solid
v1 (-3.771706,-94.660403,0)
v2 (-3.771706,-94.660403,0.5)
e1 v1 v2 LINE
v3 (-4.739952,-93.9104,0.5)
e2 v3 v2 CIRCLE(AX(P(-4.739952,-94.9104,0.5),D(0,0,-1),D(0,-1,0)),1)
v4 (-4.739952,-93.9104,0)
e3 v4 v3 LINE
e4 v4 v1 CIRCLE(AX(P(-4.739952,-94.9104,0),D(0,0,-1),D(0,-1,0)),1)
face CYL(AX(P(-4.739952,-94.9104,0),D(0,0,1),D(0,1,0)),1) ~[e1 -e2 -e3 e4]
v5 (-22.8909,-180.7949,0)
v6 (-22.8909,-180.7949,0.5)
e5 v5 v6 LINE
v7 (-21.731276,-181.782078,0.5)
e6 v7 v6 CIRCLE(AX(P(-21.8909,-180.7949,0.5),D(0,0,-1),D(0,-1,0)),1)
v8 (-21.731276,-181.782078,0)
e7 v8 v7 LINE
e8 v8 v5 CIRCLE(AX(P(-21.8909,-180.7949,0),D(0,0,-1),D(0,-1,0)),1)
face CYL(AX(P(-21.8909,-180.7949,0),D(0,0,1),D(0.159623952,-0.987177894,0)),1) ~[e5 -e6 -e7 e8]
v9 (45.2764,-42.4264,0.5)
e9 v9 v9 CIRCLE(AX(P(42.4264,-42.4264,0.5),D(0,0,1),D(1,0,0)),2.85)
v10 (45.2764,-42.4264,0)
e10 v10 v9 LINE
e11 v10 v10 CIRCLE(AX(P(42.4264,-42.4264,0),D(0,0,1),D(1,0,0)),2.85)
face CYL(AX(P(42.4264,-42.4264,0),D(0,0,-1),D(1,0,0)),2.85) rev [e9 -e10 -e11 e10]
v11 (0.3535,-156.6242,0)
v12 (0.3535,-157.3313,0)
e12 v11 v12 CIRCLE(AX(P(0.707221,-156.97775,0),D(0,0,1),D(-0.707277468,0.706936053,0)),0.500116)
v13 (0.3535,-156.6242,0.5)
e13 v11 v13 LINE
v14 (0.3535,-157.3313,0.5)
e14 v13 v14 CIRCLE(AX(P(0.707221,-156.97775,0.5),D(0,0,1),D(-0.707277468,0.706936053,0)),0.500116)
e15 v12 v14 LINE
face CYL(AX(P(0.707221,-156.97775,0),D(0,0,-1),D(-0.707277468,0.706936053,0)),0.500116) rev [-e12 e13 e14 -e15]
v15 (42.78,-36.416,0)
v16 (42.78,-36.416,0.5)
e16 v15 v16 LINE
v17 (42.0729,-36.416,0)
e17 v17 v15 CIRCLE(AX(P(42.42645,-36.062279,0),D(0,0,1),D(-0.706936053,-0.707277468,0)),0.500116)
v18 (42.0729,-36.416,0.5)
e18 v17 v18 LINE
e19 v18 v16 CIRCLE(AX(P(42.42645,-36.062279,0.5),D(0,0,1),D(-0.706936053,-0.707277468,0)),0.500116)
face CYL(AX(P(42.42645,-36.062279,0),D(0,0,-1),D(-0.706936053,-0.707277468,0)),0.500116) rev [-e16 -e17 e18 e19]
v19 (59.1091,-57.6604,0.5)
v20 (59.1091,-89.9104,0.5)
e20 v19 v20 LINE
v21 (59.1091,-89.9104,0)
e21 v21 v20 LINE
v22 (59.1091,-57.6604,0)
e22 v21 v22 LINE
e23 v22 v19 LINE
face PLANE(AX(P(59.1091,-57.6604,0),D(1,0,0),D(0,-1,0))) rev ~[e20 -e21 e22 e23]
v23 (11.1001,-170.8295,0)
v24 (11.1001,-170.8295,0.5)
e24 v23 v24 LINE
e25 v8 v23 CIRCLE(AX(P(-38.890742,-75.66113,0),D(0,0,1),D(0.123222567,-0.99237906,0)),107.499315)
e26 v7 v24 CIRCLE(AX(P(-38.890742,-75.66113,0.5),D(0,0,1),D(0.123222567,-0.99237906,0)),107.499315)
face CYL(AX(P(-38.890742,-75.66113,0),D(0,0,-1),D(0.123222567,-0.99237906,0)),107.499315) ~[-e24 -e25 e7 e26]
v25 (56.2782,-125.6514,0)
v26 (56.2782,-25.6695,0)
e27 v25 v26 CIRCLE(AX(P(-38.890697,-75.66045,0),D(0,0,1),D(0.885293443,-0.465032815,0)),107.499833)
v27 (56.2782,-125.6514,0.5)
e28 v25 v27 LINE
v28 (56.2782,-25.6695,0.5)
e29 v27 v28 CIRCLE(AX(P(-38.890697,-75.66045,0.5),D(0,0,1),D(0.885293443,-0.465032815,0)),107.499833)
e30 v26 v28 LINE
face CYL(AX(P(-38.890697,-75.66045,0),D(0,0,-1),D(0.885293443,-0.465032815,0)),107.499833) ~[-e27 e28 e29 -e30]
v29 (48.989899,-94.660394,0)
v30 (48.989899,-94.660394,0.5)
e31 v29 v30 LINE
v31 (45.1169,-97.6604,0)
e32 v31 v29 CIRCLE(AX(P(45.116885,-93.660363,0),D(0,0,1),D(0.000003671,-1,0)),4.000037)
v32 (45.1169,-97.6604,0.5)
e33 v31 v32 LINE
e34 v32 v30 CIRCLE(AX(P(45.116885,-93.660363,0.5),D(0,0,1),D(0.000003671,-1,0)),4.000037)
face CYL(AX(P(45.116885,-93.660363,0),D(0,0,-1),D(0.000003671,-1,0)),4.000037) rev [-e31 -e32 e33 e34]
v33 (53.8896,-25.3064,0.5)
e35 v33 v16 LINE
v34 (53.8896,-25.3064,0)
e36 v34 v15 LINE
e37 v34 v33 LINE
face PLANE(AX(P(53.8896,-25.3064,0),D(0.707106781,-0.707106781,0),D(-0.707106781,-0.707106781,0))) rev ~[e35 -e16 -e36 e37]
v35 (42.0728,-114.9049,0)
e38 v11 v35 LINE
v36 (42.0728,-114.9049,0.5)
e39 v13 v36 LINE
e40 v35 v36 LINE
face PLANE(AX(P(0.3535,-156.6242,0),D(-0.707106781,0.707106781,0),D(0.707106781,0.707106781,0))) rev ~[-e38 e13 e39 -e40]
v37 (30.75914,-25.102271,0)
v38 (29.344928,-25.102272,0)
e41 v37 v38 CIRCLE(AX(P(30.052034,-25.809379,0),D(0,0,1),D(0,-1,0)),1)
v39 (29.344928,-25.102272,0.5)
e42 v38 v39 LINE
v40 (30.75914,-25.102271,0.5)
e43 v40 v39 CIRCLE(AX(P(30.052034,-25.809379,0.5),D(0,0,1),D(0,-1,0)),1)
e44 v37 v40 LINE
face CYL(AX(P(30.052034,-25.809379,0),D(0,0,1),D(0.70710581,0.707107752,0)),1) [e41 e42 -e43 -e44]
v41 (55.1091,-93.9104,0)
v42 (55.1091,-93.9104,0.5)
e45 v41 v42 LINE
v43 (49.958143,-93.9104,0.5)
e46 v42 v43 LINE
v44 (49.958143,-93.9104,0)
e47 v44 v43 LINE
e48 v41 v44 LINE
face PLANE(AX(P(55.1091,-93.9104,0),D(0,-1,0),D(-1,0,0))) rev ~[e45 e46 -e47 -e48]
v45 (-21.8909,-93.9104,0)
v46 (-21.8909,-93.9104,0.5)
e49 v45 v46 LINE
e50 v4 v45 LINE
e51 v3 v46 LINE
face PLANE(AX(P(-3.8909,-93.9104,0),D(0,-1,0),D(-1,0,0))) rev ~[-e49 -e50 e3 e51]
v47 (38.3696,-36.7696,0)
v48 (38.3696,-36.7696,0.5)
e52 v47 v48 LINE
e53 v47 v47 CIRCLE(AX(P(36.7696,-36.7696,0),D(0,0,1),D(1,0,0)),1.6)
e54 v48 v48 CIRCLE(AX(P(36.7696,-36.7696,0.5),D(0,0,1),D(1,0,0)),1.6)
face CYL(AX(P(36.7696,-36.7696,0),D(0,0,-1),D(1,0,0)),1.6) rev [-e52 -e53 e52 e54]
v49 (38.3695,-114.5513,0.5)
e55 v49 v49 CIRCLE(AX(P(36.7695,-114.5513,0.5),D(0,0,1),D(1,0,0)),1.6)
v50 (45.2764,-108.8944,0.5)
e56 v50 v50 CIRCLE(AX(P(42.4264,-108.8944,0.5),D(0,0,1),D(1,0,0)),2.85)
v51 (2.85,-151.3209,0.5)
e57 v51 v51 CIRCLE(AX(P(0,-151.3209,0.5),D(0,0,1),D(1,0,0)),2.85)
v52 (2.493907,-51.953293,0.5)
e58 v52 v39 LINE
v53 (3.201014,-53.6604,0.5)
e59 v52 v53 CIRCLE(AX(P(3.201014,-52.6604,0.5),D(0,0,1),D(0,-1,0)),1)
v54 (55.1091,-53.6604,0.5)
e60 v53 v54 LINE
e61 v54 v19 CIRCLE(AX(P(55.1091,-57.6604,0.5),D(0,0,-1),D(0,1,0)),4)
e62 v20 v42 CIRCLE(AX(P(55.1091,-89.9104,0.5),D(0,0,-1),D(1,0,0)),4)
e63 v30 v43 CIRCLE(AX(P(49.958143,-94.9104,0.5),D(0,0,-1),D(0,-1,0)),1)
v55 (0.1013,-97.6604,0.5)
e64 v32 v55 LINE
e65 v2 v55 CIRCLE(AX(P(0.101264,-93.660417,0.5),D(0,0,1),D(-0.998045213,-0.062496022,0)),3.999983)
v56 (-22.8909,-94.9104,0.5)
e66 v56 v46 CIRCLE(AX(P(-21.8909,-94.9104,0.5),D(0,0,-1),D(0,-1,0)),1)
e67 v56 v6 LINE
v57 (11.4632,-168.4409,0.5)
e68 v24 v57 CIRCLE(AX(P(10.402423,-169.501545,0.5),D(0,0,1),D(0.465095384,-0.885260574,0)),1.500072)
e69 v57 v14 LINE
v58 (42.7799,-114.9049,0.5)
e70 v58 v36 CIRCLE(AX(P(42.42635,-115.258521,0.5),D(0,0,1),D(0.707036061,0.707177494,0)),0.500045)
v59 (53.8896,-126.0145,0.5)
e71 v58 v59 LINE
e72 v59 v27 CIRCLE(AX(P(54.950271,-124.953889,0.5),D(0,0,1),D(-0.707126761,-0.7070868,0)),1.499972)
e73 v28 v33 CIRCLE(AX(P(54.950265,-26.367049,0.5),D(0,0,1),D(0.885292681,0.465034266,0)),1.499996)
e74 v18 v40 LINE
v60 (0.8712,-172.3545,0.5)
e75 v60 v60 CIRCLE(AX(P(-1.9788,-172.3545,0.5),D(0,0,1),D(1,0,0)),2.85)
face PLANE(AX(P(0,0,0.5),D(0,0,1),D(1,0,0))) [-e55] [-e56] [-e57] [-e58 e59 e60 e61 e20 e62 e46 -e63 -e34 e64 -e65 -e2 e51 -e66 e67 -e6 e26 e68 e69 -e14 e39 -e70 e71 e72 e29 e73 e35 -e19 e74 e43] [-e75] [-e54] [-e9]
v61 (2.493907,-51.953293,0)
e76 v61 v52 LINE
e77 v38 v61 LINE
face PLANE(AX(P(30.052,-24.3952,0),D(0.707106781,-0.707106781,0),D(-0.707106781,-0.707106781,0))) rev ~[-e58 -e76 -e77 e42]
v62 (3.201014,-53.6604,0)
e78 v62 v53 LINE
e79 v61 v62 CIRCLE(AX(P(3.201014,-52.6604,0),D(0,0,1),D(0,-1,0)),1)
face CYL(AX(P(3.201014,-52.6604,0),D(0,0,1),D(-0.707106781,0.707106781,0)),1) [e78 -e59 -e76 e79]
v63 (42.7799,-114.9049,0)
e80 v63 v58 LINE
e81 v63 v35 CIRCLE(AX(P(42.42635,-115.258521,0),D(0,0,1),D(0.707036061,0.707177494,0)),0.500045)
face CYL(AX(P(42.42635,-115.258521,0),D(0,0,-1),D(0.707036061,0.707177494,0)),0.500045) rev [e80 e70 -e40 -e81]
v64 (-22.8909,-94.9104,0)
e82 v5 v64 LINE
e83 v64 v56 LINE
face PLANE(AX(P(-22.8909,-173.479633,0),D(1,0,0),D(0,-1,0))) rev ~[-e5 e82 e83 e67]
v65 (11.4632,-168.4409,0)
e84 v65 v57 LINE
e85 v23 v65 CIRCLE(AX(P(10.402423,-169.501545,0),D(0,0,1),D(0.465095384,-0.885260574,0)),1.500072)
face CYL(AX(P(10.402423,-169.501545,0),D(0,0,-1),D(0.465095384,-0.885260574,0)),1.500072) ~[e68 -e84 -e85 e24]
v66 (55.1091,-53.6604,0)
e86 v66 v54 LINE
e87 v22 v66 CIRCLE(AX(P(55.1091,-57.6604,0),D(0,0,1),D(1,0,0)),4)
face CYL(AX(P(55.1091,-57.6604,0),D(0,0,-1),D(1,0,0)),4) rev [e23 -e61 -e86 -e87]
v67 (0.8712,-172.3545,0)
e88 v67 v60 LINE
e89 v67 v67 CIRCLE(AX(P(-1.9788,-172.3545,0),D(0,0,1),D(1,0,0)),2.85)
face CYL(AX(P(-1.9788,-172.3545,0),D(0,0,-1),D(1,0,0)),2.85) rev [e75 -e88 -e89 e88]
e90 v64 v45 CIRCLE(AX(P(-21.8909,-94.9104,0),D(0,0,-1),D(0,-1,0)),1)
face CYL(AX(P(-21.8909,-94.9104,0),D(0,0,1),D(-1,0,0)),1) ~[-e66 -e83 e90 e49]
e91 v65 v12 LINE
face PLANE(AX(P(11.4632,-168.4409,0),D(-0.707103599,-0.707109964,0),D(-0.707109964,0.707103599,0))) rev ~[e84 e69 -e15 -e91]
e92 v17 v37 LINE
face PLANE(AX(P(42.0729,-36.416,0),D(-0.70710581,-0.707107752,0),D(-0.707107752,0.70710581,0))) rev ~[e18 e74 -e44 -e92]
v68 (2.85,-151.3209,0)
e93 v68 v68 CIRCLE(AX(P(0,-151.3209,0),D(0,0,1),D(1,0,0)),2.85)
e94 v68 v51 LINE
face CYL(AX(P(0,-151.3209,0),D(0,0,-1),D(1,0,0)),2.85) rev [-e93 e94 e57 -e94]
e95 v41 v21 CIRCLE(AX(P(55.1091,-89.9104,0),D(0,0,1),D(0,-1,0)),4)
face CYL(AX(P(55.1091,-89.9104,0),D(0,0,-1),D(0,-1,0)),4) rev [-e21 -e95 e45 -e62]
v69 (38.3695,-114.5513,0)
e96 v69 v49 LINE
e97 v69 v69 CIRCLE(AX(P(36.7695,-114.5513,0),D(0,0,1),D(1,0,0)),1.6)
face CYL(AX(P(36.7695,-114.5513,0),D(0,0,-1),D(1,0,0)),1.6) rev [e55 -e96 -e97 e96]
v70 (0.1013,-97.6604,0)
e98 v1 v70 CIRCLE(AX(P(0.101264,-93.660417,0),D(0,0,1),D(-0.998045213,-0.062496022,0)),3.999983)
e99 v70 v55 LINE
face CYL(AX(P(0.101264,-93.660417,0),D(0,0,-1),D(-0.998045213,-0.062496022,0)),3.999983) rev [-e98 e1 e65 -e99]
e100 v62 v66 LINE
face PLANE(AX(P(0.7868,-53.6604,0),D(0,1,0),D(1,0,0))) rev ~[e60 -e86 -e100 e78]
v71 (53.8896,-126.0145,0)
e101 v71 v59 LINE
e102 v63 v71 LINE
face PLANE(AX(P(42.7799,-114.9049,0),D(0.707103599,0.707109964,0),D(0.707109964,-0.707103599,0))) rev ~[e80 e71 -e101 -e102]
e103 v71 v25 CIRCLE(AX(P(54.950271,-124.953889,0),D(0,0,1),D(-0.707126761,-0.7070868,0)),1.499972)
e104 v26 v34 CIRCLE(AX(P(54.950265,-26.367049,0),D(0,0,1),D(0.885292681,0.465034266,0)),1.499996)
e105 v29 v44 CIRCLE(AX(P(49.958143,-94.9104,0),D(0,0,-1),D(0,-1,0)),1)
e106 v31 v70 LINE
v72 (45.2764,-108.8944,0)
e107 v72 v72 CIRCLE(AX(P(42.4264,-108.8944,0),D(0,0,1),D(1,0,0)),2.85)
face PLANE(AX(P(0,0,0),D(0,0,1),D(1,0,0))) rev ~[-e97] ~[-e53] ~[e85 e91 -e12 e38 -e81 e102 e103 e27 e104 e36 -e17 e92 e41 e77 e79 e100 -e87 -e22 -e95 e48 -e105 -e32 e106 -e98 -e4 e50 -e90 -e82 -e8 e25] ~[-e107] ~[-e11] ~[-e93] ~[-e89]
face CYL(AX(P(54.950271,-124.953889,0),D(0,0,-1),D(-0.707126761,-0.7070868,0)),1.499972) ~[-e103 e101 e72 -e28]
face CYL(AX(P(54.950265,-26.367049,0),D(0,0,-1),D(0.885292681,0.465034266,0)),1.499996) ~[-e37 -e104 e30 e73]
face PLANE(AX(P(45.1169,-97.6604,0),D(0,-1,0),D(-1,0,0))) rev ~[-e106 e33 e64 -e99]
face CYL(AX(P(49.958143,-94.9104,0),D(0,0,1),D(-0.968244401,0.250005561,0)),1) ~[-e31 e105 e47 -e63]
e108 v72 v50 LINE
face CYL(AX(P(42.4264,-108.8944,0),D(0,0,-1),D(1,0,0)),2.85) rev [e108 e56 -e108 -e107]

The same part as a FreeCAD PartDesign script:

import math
import FreeCAD as App
import Part
import Sketcher
from FreeCAD import Vector


def edges_at(feature, points):
    """Names of the edges that pass closest to the given points."""
    edges = feature.Shape.Edges
    near = lambda p: min(range(len(edges)), key=lambda i: edges[i].distToShape(Part.Vertex(*p))[0])
    return sorted({f"Edge{near(p) + 1}" for p in points})

doc = App.newDocument("Part")
body = doc.addObject("PartDesign::Body", "Body")

# Sketch on XY plane
sketch1 = body.newObject("Sketcher::SketchObject", "Sketch")
sketch1.AttachmentSupport = (doc.getObject("XY_Plane"), [""])
sketch1.MapMode = "FlatFace"
sketch1.addGeometry([
    Part.LineSegment(Vector(42.07, -36.42, 0), Vector(30.05, -24.4, 0)),  # 0
    Part.LineSegment(Vector(30.05, -24.4, 0), Vector(0.79, -53.66, 0)),  # 1
    Part.LineSegment(Vector(0.79, -53.66, 0), Vector(55.11, -53.66, 0)),  # 2
    Part.ArcOfCircle(Part.Circle(Vector(55.11, -57.66, 0), Vector(0, 0, 1), 4), math.radians(0), math.radians(90)),  # 3
    Part.LineSegment(Vector(59.11, -57.66, 0), Vector(59.11, -89.91, 0)),  # 4
    Part.ArcOfCircle(Part.Circle(Vector(55.11, -89.91, 0), Vector(0, 0, 1), 4), math.radians(-90), math.radians(0)),  # 5
    Part.LineSegment(Vector(55.11, -93.91, 0), Vector(49.11, -93.91, 0)),  # 6
    Part.ArcOfCircle(Part.Circle(Vector(45.12, -93.66, 0), Vector(0, 0, 1), 4), math.radians(-90), math.radians(-4)),  # 7
    Part.LineSegment(Vector(45.12, -97.66, 0), Vector(0.1, -97.66, 0)),  # 8
    Part.ArcOfCircle(Part.Circle(Vector(0.1, -93.66, 0), Vector(0, 0, 1), 4), math.radians(-176), math.radians(-90)),  # 9
    Part.LineSegment(Vector(-3.89, -93.91, 0), Vector(-22.89, -93.91, 0)),  # 10
    Part.LineSegment(Vector(-22.89, -93.91, 0), Vector(-22.89, -181.96, 0)),  # 11
    Part.ArcOfCircle(Part.Circle(Vector(-38.89, -75.66, 0), Vector(0, 0, 1), 107.5), math.radians(-81.44), math.radians(-62.29)),  # 12
    Part.ArcOfCircle(Part.Circle(Vector(10.4, -169.5, 0), Vector(0, 0, 1), 1.5), math.radians(-62), math.radians(45)),  # 13
    Part.LineSegment(Vector(11.46, -168.44, 0), Vector(0.35, -157.33, 0)),  # 14
    Part.ArcOfCircle(Part.Circle(Vector(0.71, -156.98, 0), Vector(0, 0, 1), 0.5), math.radians(135), math.radians(225)),  # 15
    Part.LineSegment(Vector(0.35, -156.62, 0), Vector(42.07, -114.9, 0)),  # 16
    Part.ArcOfCircle(Part.Circle(Vector(42.43, -115.26, 0), Vector(0, 0, 1), 0.5), math.radians(45), math.radians(135)),  # 17
    Part.LineSegment(Vector(42.78, -114.9, 0), Vector(53.89, -126.01, 0)),  # 18
    Part.ArcOfCircle(Part.Circle(Vector(54.95, -124.95, 0), Vector(0, 0, 1), 1.5), math.radians(-135), math.radians(-28)),  # 19
    Part.ArcOfCircle(Part.Circle(Vector(-38.89, -75.66, 0), Vector(0, 0, 1), 107.5), math.radians(-28), math.radians(28)),  # 20
    Part.ArcOfCircle(Part.Circle(Vector(54.95, -26.37, 0), Vector(0, 0, 1), 1.5), math.radians(28), math.radians(135)),  # 21
    Part.LineSegment(Vector(53.89, -25.31, 0), Vector(42.78, -36.42, 0)),  # 22
    Part.ArcOfCircle(Part.Circle(Vector(42.43, -36.06, 0), Vector(0, 0, 1), 0.5), math.radians(-135), math.radians(-45)),  # 23
    Part.Circle(Vector(-1.98, -172.35, 0), Vector(0, 0, 1), 2.85),  # 24
    Part.Circle(Vector(0, -151.32, 0), Vector(0, 0, 1), 2.85),  # 25
    Part.Circle(Vector(36.77, -114.55, 0), Vector(0, 0, 1), 1.6),  # 26
    Part.Circle(Vector(42.43, -108.89, 0), Vector(0, 0, 1), 2.85),  # 27
    Part.Circle(Vector(42.43, -42.43, 0), Vector(0, 0, 1), 2.85),  # 28
    Part.Circle(Vector(36.77, -36.77, 0), Vector(0, 0, 1), 1.6),  # 29
], False)
sketch1.addConstraint([
    Sketcher.Constraint("Coincident", 0, 2, 1, 1),
    Sketcher.Constraint("Coincident", 1, 2, 2, 1),
    Sketcher.Constraint("Tangent", 2, 2, 3, 2),
    Sketcher.Constraint("Tangent", 3, 1, 4, 1),
    Sketcher.Constraint("Tangent", 4, 2, 5, 2),
    Sketcher.Constraint("Tangent", 5, 1, 6, 1),
    Sketcher.Constraint("Coincident", 6, 2, 7, 2),
    Sketcher.Constraint("Tangent", 7, 1, 8, 1),
    Sketcher.Constraint("Tangent", 8, 2, 9, 2),
    Sketcher.Constraint("Coincident", 9, 1, 10, 1),
    Sketcher.Constraint("Coincident", 10, 2, 11, 1),
    Sketcher.Constraint("Coincident", 11, 2, 12, 1),
    Sketcher.Constraint("Tangent", 12, 2, 13, 1),
    Sketcher.Constraint("Tangent", 13, 2, 14, 1),
    Sketcher.Constraint("Tangent", 14, 2, 15, 2),
    Sketcher.Constraint("Tangent", 15, 1, 16, 1),
    Sketcher.Constraint("Tangent", 16, 2, 17, 2),
    Sketcher.Constraint("Tangent", 17, 1, 18, 1),
    Sketcher.Constraint("Tangent", 18, 2, 19, 1),
    Sketcher.Constraint("Tangent", 19, 2, 20, 1),
    Sketcher.Constraint("Tangent", 20, 2, 21, 1),
    Sketcher.Constraint("Tangent", 21, 2, 22, 1),
    Sketcher.Constraint("Tangent", 22, 2, 23, 2),
    Sketcher.Constraint("Tangent", 23, 1, 0, 1),
    Sketcher.Constraint("Horizontal", 2),
    Sketcher.Constraint("Vertical", 4),
    Sketcher.Constraint("Horizontal", 6),
    Sketcher.Constraint("Horizontal", 8),
    Sketcher.Constraint("Horizontal", 10),
    Sketcher.Constraint("Vertical", 11),
    Sketcher.Constraint("Coincident", 20, 3, 12, 3),
    Sketcher.Constraint("Equal", 3, 5),
    Sketcher.Constraint("Equal", 5, 7),
    Sketcher.Constraint("Equal", 7, 9),
    Sketcher.Constraint("Equal", 15, 17),
    Sketcher.Constraint("Equal", 13, 19),
    Sketcher.Constraint("Equal", 12, 20),
    Sketcher.Constraint("Equal", 19, 21),
    Sketcher.Constraint("Equal", 17, 23),
    Sketcher.Constraint("Equal", 24, 25),
    Sketcher.Constraint("Equal", 25, 27),
    Sketcher.Constraint("Equal", 27, 28),
    Sketcher.Constraint("Equal", 26, 29),
    Sketcher.Constraint("PointOnObject", 25, 3, -2),
    Sketcher.Constraint("Perpendicular", 0, 1),
    Sketcher.Constraint("Perpendicular", 1, 14),
    Sketcher.Constraint("Perpendicular", 14, 16),
    Sketcher.Constraint("Perpendicular", 16, 18),
    Sketcher.Constraint("Perpendicular", 18, 22),
    Sketcher.Constraint("Horizontal", 6, 2, 9, 1),
    Sketcher.Constraint("Horizontal", 16, 2, 17, 1),
    Sketcher.Constraint("Vertical", 19, 3, 21, 3),
    Sketcher.Constraint("Vertical", 17, 3, 23, 3),
    Sketcher.Constraint("Vertical", 23, 3, 27, 3),
    Sketcher.Constraint("Vertical", 27, 3, 28, 3),
    Sketcher.Constraint("Vertical", 26, 3, 29, 3),
    Sketcher.Constraint("Equal", 14, 18),
    Sketcher.Constraint("Radius", 3, 4.0),
    Sketcher.Constraint("Diameter", 24, 5.7),
    Sketcher.Constraint("Diameter", 26, 3.2),
    Sketcher.Constraint("Radius", 12, 107.5),
    Sketcher.Constraint("Radius", 13, 1.5),
    Sketcher.Constraint("Radius", 15, 0.5),
    Sketcher.Constraint("DistanceX", 6, 2, 6, 1, 6.0),
    Sketcher.Constraint("DistanceX", 10, 2, 10, 1, 19.0),
    Sketcher.Constraint("Distance", 0, 17.0),
    Sketcher.Constraint("Distance", 16, 59.0),
    Sketcher.Constraint("DistanceY", 7, 3, 3, 3, 36.0),
    Sketcher.Constraint("DistanceY", 9, 3, 12, 3, 18.0),
    Sketcher.Constraint("DistanceX", 12, 3, 5, 3, 94.0),
    Sketcher.Constraint("DistanceX", 12, 3, 9, 1, 35.0),
    Sketcher.Constraint("DistanceY", 4, 2, 4, 1, 32.25),
    Sketcher.Constraint("DistanceY", 29, 3, 20, 2, 11.1),
    Sketcher.Constraint("DistanceX", -1, 1, 17, 1, 42.78),
    Sketcher.Constraint("DistanceX", 24, 3, 9, 3, 2.08),
    Sketcher.Constraint("DistanceY", 13, 2, 25, 3, 17.12),
    Sketcher.Constraint("DistanceY", 18, 2, 27, 3, 17.12),
    Sketcher.Constraint("DistanceY", 28, 3, 21, 2, 17.12),
    Sketcher.Constraint("DistanceX", 29, 3, 21, 2, 17.12),
    Sketcher.Constraint("DistanceX", -1, 1, 3, 3, 55.109),
    Sketcher.Constraint("DistanceY", 21, 3, -1, 1, 26.367),
    Sketcher.Constraint("DistanceY", 24, 3, 13, 3, 2.853),
    Sketcher.Constraint("DistanceY", 17, 3, 26, 3, 0.707),
])
pad1 = body.newObject("PartDesign::Pad", "Pad")
pad1.Profile = sketch1
pad1.Length = 0.5
doc.recompute()

fillet = body.newObject("PartDesign::Fillet", "Fillet")
fillet.Base = (pad1, edges_at(pad1, [
    (-22.891, -93.91, 0.25),
    (-3.891, -93.91, 0.25),
    (49.109, -93.91, 0.25),
    (0.787, -53.66, 0.25),
    (30.052, -24.395, 0.25),
    (-22.891, -181.963, 0.25),
]))
fillet.Radius = 1

doc.recompute()
